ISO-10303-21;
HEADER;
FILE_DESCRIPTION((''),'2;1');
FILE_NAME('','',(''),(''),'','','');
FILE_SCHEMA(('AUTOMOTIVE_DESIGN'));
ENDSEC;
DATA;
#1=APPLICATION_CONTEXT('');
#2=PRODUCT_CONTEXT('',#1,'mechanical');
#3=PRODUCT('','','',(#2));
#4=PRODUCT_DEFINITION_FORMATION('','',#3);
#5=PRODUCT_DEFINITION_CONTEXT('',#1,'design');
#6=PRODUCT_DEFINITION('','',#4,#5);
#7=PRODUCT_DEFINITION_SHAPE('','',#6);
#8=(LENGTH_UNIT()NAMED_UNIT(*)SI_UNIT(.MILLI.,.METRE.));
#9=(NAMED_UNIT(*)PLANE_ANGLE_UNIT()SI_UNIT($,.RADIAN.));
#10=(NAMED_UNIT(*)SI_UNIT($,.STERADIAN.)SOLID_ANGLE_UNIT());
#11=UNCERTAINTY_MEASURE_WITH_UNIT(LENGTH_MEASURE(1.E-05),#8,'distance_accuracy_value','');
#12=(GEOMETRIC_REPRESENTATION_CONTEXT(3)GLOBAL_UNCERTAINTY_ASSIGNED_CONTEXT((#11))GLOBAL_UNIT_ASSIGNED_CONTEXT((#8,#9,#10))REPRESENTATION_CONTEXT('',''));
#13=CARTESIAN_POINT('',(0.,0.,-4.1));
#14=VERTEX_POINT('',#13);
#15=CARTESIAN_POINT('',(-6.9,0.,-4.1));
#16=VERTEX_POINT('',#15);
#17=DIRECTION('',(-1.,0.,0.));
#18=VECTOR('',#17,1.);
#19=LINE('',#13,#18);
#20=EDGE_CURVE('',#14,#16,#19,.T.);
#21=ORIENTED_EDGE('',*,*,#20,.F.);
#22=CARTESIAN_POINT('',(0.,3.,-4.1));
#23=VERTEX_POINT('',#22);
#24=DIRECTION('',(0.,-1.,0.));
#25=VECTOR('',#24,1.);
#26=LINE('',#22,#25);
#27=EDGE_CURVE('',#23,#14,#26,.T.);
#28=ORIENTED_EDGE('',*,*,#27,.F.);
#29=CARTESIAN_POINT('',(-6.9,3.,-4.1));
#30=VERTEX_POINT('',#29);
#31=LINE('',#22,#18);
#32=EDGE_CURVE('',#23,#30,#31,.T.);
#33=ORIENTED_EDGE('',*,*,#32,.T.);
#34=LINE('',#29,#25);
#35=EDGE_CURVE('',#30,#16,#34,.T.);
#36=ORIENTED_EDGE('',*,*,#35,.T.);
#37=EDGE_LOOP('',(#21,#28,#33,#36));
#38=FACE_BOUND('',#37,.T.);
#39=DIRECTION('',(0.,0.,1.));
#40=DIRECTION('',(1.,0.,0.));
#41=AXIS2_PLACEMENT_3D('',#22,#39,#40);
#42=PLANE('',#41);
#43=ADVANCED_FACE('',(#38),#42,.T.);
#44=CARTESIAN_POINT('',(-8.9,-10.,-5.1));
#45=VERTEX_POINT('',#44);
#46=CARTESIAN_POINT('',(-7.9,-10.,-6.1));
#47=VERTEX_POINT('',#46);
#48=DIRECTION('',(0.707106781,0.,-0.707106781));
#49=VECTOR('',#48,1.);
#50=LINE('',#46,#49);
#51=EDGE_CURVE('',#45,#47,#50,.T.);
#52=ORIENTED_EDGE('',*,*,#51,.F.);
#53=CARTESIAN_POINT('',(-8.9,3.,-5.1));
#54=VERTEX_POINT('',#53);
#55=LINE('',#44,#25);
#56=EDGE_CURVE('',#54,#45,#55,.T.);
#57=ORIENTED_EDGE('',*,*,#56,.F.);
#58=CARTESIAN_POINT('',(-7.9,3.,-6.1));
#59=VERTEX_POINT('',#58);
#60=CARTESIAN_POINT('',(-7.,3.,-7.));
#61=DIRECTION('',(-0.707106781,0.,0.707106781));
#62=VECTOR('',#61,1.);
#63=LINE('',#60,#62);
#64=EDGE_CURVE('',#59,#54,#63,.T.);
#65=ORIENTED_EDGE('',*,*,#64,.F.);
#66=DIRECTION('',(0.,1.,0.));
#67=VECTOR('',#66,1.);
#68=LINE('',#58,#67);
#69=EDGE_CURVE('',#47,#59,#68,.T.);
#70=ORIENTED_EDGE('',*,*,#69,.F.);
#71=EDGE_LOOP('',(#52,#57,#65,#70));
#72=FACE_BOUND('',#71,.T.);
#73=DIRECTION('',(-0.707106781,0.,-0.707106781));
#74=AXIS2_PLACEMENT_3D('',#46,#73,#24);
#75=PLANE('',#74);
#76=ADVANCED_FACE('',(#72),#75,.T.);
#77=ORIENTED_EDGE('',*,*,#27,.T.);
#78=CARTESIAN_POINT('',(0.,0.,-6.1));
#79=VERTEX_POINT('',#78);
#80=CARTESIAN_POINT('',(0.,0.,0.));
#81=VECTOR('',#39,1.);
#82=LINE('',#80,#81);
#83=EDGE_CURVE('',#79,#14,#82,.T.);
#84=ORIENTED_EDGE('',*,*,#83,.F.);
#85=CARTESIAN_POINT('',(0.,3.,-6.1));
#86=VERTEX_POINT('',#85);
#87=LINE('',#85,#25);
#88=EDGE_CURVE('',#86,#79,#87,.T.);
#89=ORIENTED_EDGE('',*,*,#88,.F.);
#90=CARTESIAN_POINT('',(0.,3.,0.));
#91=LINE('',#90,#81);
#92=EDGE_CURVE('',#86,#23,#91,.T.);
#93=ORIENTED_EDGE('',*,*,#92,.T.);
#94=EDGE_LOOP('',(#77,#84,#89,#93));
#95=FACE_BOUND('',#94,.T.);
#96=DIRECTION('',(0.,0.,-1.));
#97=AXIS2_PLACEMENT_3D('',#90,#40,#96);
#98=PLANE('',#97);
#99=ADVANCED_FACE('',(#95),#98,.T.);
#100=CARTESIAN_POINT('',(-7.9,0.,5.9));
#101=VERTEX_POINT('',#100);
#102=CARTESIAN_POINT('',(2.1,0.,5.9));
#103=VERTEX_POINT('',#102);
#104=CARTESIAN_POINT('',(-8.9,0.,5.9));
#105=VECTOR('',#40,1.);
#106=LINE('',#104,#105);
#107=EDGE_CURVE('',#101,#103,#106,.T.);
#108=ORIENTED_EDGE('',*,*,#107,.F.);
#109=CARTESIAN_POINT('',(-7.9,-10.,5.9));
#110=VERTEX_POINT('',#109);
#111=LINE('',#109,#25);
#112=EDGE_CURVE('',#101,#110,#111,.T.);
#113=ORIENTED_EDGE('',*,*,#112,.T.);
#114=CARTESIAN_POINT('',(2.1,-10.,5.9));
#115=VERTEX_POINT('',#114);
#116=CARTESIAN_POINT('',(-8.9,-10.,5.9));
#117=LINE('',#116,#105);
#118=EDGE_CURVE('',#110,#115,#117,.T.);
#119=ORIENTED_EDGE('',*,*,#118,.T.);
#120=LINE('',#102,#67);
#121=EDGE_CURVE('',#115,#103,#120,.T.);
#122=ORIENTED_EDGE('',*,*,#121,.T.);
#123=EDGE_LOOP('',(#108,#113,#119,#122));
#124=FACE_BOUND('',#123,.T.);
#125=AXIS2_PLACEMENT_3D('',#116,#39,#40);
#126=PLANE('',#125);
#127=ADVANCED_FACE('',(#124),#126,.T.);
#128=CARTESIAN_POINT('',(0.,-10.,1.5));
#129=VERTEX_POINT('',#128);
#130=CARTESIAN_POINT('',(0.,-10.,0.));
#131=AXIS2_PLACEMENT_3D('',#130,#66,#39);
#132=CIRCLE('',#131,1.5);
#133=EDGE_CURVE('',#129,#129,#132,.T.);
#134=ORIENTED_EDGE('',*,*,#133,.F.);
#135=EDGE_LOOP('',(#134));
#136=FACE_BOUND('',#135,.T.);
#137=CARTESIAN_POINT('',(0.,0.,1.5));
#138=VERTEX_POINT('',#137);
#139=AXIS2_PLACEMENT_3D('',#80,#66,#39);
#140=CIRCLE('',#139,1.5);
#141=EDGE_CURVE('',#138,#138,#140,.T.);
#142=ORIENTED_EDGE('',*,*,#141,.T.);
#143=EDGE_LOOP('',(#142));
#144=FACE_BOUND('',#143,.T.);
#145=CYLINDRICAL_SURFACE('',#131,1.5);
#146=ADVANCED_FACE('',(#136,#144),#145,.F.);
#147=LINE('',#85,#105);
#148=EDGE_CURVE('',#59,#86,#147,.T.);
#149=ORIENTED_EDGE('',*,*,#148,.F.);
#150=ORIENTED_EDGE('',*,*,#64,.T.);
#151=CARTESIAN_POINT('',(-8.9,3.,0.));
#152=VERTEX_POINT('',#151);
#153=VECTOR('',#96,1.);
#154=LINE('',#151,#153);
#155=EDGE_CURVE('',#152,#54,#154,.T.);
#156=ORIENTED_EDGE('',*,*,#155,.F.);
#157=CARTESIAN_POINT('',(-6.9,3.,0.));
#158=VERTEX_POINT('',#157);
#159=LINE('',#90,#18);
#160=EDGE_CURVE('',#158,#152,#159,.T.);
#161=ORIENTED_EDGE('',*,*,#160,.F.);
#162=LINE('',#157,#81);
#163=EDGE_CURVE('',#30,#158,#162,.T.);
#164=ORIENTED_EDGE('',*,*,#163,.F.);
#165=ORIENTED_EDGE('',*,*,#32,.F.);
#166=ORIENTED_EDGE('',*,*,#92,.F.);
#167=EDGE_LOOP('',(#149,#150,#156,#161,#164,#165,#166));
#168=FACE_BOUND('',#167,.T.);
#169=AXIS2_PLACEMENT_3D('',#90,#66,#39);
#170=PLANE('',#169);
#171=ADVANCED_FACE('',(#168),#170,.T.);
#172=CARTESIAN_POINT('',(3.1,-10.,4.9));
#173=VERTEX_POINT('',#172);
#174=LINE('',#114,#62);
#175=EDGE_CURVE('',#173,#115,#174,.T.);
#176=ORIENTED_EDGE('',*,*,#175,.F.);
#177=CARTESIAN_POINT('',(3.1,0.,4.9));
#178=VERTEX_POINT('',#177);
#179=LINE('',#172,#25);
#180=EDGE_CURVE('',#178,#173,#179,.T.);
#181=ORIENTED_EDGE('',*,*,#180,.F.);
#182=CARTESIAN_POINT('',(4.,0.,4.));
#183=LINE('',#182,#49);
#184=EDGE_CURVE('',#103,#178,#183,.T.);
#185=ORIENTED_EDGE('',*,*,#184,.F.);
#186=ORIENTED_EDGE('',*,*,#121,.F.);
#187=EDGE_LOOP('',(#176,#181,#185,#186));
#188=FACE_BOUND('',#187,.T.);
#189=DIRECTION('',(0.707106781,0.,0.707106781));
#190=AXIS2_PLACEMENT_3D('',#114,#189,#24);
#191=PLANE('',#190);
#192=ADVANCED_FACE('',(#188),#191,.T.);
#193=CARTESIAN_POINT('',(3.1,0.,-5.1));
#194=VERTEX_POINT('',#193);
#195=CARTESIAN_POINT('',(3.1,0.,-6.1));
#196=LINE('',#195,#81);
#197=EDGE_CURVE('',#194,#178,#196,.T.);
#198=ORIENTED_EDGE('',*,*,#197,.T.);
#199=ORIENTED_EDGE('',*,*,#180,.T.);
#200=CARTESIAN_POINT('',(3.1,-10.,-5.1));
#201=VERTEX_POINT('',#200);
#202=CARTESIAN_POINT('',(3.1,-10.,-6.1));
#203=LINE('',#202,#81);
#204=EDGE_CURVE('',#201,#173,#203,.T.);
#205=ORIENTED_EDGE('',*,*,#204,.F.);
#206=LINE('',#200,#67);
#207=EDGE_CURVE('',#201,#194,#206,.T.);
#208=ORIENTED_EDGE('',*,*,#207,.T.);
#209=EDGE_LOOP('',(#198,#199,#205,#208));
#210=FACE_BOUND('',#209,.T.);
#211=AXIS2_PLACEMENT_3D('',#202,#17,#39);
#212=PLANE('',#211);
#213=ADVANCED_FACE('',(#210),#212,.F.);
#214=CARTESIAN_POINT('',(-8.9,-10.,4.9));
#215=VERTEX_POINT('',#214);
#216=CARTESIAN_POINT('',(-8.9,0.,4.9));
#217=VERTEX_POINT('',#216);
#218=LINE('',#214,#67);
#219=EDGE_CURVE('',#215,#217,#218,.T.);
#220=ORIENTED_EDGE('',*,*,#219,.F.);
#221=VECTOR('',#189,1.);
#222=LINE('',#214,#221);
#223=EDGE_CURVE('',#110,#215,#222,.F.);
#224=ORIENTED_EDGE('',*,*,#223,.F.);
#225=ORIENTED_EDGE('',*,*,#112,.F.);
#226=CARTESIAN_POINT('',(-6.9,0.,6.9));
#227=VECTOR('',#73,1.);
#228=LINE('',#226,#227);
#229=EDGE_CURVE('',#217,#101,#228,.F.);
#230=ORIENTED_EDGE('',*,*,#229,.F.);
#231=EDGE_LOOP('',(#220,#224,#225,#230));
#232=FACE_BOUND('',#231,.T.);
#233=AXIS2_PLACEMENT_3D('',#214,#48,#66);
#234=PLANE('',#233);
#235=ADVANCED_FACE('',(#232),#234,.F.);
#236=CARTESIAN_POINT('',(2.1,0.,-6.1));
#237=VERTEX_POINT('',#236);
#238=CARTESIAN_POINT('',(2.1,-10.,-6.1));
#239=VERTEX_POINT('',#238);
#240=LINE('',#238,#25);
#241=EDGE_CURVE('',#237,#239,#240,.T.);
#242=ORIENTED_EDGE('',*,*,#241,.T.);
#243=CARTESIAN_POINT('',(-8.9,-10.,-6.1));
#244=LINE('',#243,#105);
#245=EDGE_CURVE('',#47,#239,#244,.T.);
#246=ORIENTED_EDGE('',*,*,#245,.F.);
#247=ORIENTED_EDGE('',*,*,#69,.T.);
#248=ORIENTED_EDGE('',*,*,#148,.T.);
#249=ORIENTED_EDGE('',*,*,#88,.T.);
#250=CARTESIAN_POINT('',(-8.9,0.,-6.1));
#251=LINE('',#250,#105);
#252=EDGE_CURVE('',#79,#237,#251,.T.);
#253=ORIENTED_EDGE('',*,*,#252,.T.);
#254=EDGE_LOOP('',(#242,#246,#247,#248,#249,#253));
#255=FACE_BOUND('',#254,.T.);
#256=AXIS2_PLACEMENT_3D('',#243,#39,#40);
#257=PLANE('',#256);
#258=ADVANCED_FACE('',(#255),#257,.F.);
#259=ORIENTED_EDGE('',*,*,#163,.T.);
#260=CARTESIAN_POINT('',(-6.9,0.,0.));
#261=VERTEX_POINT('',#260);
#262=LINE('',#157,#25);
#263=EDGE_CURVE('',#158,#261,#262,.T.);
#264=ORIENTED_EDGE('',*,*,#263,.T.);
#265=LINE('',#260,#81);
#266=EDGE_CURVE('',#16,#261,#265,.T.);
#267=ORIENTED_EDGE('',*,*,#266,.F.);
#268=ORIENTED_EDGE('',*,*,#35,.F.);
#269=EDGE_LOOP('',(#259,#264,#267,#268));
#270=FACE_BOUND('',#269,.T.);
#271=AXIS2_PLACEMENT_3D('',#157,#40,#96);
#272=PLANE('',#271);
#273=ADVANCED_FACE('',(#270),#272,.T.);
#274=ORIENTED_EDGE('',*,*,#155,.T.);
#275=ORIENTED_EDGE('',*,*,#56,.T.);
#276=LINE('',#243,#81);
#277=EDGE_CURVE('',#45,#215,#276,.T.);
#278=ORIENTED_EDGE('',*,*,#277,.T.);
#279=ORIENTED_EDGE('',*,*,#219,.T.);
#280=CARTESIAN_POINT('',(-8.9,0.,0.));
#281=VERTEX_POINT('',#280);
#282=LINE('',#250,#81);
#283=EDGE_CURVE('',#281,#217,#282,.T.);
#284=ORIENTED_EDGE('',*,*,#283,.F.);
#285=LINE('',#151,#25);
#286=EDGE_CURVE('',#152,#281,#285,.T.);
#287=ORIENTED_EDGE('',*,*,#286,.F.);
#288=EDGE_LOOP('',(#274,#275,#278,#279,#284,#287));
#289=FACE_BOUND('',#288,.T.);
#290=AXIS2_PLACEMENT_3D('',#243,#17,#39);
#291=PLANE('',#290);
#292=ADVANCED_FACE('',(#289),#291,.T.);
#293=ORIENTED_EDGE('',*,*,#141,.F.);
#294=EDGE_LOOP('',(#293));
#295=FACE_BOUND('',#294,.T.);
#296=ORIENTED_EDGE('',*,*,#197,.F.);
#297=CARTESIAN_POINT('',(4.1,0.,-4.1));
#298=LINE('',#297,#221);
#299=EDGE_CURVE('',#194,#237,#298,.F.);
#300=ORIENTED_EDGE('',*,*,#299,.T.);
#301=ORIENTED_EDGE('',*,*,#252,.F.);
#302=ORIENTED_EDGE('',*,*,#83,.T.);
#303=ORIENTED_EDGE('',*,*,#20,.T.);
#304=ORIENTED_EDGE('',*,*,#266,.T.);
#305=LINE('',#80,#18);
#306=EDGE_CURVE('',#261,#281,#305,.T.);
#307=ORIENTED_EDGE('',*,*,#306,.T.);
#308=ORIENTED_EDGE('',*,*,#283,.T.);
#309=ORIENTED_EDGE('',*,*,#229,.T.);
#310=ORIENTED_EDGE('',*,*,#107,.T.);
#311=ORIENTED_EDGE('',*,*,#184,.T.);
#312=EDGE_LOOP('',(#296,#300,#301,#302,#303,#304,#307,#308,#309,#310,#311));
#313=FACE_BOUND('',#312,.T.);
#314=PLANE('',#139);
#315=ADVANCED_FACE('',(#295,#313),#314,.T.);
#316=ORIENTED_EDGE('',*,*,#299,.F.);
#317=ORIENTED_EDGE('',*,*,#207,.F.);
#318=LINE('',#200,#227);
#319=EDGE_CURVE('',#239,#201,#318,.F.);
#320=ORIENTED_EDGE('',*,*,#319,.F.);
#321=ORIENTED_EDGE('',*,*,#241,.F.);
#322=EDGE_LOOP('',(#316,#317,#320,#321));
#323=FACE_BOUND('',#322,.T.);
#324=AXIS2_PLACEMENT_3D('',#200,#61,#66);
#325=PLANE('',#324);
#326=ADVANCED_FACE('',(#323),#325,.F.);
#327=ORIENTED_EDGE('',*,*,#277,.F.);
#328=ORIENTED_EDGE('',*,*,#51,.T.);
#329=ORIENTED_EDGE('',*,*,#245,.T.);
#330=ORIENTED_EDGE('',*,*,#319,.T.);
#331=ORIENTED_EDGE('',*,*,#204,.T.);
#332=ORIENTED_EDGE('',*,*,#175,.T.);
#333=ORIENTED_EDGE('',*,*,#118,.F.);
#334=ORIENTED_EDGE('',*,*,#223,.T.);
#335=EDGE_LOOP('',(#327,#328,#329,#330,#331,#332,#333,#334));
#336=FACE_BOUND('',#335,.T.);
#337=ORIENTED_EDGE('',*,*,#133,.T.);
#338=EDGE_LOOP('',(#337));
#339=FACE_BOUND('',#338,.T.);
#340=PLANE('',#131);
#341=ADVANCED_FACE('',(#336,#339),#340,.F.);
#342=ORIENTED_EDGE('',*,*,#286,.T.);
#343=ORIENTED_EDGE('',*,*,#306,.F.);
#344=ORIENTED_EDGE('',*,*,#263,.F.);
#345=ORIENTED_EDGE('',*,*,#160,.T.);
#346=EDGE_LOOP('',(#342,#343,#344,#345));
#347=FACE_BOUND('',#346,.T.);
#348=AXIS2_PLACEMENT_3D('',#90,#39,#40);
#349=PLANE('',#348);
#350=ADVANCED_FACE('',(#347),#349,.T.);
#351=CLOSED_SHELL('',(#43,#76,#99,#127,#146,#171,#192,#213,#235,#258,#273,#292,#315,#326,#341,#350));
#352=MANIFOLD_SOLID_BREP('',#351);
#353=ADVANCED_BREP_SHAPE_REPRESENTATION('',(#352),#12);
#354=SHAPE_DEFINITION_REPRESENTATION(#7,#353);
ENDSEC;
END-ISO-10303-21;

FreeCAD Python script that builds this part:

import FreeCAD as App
import Part
import Sketcher

V = App.Vector
Q = App.Units.Quantity


def edges_at(feature, points):
    """Names of the edges that pass closest to the given points."""
    edges = feature.Shape.Edges
    near = lambda p: min(range(len(edges)), key=lambda i: edges[i].distToShape(Part.Vertex(*p))[0])
    return sorted({f"Edge{near(p) + 1}" for p in points})


def add_polygon(sketch, points):
    """Adds a closed chain of lines whose ends are joined by coincident constraints."""
    first, n = sketch.GeometryCount, len(points)
    for a, b in zip(points, points[1:] + points[:1]):
        sketch.addGeometry(Part.LineSegment(App.Vector(*a, 0), App.Vector(*b, 0)), False)
    for i in range(n):
        sketch.addConstraint(Sketcher.Constraint("Coincident", first + i, 2, first + (i + 1) % n, 1))

doc = App.newDocument("Part")
body = doc.addObject("PartDesign::Body", "Body")

sketch1 = body.newObject("Sketcher::SketchObject", "Sketch")
sketch1.AttachmentSupport = (doc.getObject("XZ_Plane"), [""])
sketch1.MapMode = "FlatFace"
add_polygon(sketch1, [(-9, -6), (-9, 6), (3, 6), (3, -6)])
sketch1.addConstraint(Sketcher.Constraint("Vertical", 0))
sketch1.addConstraint(Sketcher.Constraint("Horizontal", 1))
sketch1.addConstraint(Sketcher.Constraint("Vertical", 2))
sketch1.addConstraint(Sketcher.Constraint("Horizontal", 3))
sketch1.addConstraint(Sketcher.Constraint("Equal", 3, 0))
sketch1.addConstraint(Sketcher.Constraint("DistanceX", 1, 1, 1, 2, Q("12 mm")))
sketch1.addConstraint(Sketcher.Constraint("DistanceX", 0, 2, -1, 1, Q("8.9 mm")))
sketch1.addConstraint(Sketcher.Constraint("DistanceY", -1, 1, 0, 2, Q("5.9 mm")))
pad1 = body.newObject("PartDesign::Pad", "Pad")
pad1.Profile = sketch1
pad1.Length = 10

sketch2 = body.newObject("Sketcher::SketchObject", "Sketch001")
sketch2.AttachmentSupport = (doc.getObject("XZ_Plane"), [""])
sketch2.MapMode = "FlatFace"
add_polygon(sketch2, [(0, -4.1), (0, -6.1), (-8.9, -6.1), (-8.9, 0), (-6.9, 0), (-6.9, -4.1)])
sketch2.addConstraint(Sketcher.Constraint("Vertical", 0))
sketch2.addConstraint(Sketcher.Constraint("Horizontal", 1))
sketch2.addConstraint(Sketcher.Constraint("Vertical", 2))
sketch2.addConstraint(Sketcher.Constraint("Horizontal", 3))
sketch2.addConstraint(Sketcher.Constraint("Vertical", 4))
sketch2.addConstraint(Sketcher.Constraint("Horizontal", 5))
sketch2.addConstraint(Sketcher.Constraint("PointOnObject", 0, 2, -2))
sketch2.addConstraint(Sketcher.Constraint("PointOnObject", 2, 2, -1))
sketch2.addConstraint(Sketcher.Constraint("Equal", 3, 0))
sketch2.addConstraint(Sketcher.Constraint("DistanceX", 3, 1, 3, 2, Q("2 mm")))
sketch2.addConstraint(Sketcher.Constraint("DistanceX", 1, 2, 1, 1, Q("8.9 mm")))
sketch2.addConstraint(Sketcher.Constraint("DistanceY", 2, 1, 2, 2, Q("6.1 mm")))
pad2 = body.newObject("PartDesign::Pad", "Pad001")
pad2.Profile = sketch2
pad2.Length = 3
pad2.Reversed = True
doc.recompute()

chamfer = body.newObject("PartDesign::Chamfer", "Chamfer")
chamfer.Base = (pad2, edges_at(pad2, [
    (-8.9, -3.5, -6.1),
    (3.1, -5, -6.1),
    (3.1, -5, 5.9),
    (-8.9, -5, 5.9),
]))
chamfer.Size = 1

sketch3 = body.newObject("Sketcher::SketchObject", "Sketch002")
sketch3.AttachmentSupport = (doc.getObject("XZ_Plane"), [""])
sketch3.MapMode = "FlatFace"
sketch3.addGeometry(Part.Circle(V(0, 0, 0), V(0, 0, 1), 1.5), False)
sketch3.addConstraint(Sketcher.Constraint("Coincident", 0, 3, -1, 1))
sketch3.addConstraint(Sketcher.Constraint("Diameter", 0, Q("3 mm")))
pocket1 = body.newObject("PartDesign::Pocket", "Pocket")
pocket1.Profile = sketch3
pocket1.Type = "ThroughAll"
pocket1.Reversed = True

doc.recompute()
